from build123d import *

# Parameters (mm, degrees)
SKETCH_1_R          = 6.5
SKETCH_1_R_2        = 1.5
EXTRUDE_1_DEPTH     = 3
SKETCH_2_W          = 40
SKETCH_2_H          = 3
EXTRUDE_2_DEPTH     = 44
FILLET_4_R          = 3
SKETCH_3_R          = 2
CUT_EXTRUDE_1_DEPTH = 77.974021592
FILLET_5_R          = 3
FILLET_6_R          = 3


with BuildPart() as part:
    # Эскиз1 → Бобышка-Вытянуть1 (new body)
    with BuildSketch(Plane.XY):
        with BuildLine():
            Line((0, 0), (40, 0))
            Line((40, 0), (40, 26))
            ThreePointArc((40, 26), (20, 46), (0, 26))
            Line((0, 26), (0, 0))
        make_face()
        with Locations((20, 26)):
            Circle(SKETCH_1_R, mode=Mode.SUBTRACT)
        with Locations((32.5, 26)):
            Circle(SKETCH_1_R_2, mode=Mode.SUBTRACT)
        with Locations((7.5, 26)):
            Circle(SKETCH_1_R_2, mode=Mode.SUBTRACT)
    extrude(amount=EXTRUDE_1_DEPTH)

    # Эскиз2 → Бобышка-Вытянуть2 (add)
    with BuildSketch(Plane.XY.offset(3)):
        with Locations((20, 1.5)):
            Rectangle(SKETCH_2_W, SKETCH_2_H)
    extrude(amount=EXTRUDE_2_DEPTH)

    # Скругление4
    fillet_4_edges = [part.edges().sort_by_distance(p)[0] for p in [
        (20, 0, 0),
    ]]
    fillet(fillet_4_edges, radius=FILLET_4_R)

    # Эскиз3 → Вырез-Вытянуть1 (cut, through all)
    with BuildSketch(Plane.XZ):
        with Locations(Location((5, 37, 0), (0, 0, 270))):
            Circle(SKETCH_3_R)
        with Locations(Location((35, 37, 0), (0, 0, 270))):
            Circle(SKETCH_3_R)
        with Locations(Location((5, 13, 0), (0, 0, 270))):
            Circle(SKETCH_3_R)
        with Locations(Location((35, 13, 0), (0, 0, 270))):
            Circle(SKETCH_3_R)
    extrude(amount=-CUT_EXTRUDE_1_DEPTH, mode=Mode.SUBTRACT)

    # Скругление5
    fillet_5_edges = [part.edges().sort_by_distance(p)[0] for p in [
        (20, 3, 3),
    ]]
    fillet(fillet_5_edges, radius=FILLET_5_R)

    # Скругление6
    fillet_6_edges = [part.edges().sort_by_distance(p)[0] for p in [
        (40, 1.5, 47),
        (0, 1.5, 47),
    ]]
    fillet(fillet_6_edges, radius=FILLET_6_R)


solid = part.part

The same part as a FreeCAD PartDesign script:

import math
import FreeCAD as App
import Part
import Sketcher

V = App.Vector


def edges_at(feature, points):
    """Names of the edges that pass closest to the given points."""
    edges = feature.Shape.Edges
    near = lambda p: min(range(len(edges)), key=lambda i: edges[i].distToShape(Part.Vertex(*p))[0])
    return sorted({f"Edge{near(p) + 1}" for p in points})

doc = App.newDocument("Part")
body = doc.addObject("PartDesign::Body", "Body")

# Sketch on XY plane
sketch1 = body.newObject("Sketcher::SketchObject", "Sketch")
sketch1.AttachmentSupport = (doc.getObject("XY_Plane"), [""])
sketch1.MapMode = "FlatFace"
sketch1.addGeometry([
    Part.LineSegment(V(0, 0, 0), V(40, 0, 0)),  # 0
    Part.LineSegment(V(40, 0, 0), V(40, 26, 0)),  # 1
    Part.ArcOfCircle(Part.Circle(V(20, 26, 0), V(0, 0, 1), 20), math.radians(0), math.radians(180)),  # 2
    Part.LineSegment(V(0, 26, 0), V(0, 0, 0)),  # 3
    Part.Circle(V(7.5, 26, 0), V(0, 0, 1), 1.5),  # 4
    Part.Circle(V(20, 26, 0), V(0, 0, 1), 6.5),  # 5
    Part.Circle(V(32.5, 26, 0), V(0, 0, 1), 1.5),  # 6
], False)
sketch1.addConstraint([
    Sketcher.Constraint("Coincident", 0, 2, 1, 1),
    Sketcher.Constraint("Tangent", 1, 2, 2, 1),
    Sketcher.Constraint("Tangent", 2, 2, 3, 1),
    Sketcher.Constraint("Coincident", 3, 2, 0, 1),
    Sketcher.Constraint("Horizontal", 0),
    Sketcher.Constraint("Vertical", 1),
    Sketcher.Constraint("Vertical", 3),
    Sketcher.Constraint("Coincident", 3, 2, -1, 1),
    Sketcher.Constraint("Coincident", 5, 3, 2, 3),
    Sketcher.Constraint("Equal", 4, 6),
    Sketcher.Constraint("Horizontal", 2, 3, 4, 3),
    Sketcher.Constraint("Horizontal", 5, 3, 6, 3),
    Sketcher.Constraint("Diameter", 4, 3.0),
    Sketcher.Constraint("Diameter", 5, 13.0),
    Sketcher.Constraint("Radius", 2, 20.0),
    Sketcher.Constraint("DistanceY", 1, 1, 1, 2, 26.0),
    Sketcher.Constraint("DistanceX", 4, 3, 6, 3, 25.0),
    Sketcher.Constraint("DistanceX", -1, 1, 4, 3, 7.5),
])
pad1 = body.newObject("PartDesign::Pad", "Pad")
pad1.Profile = sketch1
pad1.Length = 3

# Sketch on XY plane
sketch2 = body.newObject("Sketcher::SketchObject", "Sketch001")
sketch2.AttachmentSupport = (doc.getObject("XY_Plane"), [""])
sketch2.MapMode = "FlatFace"
sketch2.AttachmentOffset = App.Placement(V(0, 0, 3), App.Rotation())
sketch2.addGeometry([
    Part.LineSegment(V(0, 3, 0), V(0, 0, 0)),
    Part.LineSegment(V(0, 0, 0), V(40, 0, 0)),
    Part.LineSegment(V(40, 0, 0), V(40, 3, 0)),
    Part.LineSegment(V(40, 3, 0), V(0, 3, 0)),
], False)
sketch2.addConstraint([
    Sketcher.Constraint("Coincident", 0, 2, 1, 1),
    Sketcher.Constraint("Coincident", 1, 2, 2, 1),
    Sketcher.Constraint("Coincident", 2, 2, 3, 1),
    Sketcher.Constraint("Coincident", 3, 2, 0, 1),
    Sketcher.Constraint("Vertical", 0),
    Sketcher.Constraint("Horizontal", 1),
    Sketcher.Constraint("Vertical", 2),
    Sketcher.Constraint("Horizontal", 3),
    Sketcher.Constraint("Coincident", 0, 2, -1, 1),
    Sketcher.Constraint("DistanceX", 1, 1, 1, 2, 40.0),
    Sketcher.Constraint("DistanceY", 0, 2, 0, 1, 3.0),
])
pad2 = body.newObject("PartDesign::Pad", "Pad001")
pad2.Profile = sketch2
pad2.Length = 44
doc.recompute()

fillet = body.newObject("PartDesign::Fillet", "Fillet")
fillet.Base = (pad2, edges_at(pad2, [(20, 0, 0)]))
fillet.Radius = 3

# Sketch on XZ plane
sketch3 = body.newObject("Sketcher::SketchObject", "Sketch002")
sketch3.AttachmentSupport = (doc.getObject("XZ_Plane"), [""])
sketch3.MapMode = "FlatFace"
sketch3.addGeometry([
    Part.Circle(V(5, 37, 0), V(0, 0, 1), 2),
    Part.Circle(V(35, 37, 0), V(0, 0, 1), 2),
    Part.Circle(V(5, 13, 0), V(0, 0, 1), 2),
    Part.Circle(V(35, 13, 0), V(0, 0, 1), 2),
], False)
sketch3.addConstraint([
    Sketcher.Constraint("Equal", 0, 1),
    Sketcher.Constraint("Equal", 1, 2),
    Sketcher.Constraint("Equal", 2, 3),
    Sketcher.Constraint("Horizontal", 0, 3, 1, 3),
    Sketcher.Constraint("Horizontal", 2, 3, 3, 3),
    Sketcher.Constraint("Vertical", 0, 3, 2, 3),
    Sketcher.Constraint("Vertical", 1, 3, 3, 3),
    Sketcher.Constraint("Diameter", 0, 4.0),
    Sketcher.Constraint("DistanceX", -1, 1, 0, 3, 5.0),
    Sketcher.Constraint("DistanceY", -1, 1, 0, 3, 37.0),
    Sketcher.Constraint("DistanceX", -1, 1, 1, 3, 35.0),
    Sketcher.Constraint("DistanceY", -1, 1, 2, 3, 13.0),
])
pocket1 = body.newObject("PartDesign::Pocket", "Pocket")
pocket1.Profile = sketch3
pocket1.Type = "ThroughAll"
doc.recompute()

fillet2 = body.newObject("PartDesign::Fillet", "Fillet001")
fillet2.Base = (pocket1, edges_at(pocket1, [(20, 3, 3)]))
fillet2.Radius = 3
doc.recompute()

fillet3 = body.newObject("PartDesign::Fillet", "Fillet002")
fillet3.Base = (fillet2, edges_at(fillet2, [(40, 1.5, 47), (0, 1.5, 47)]))
fillet3.Radius = 3

doc.recompute()
